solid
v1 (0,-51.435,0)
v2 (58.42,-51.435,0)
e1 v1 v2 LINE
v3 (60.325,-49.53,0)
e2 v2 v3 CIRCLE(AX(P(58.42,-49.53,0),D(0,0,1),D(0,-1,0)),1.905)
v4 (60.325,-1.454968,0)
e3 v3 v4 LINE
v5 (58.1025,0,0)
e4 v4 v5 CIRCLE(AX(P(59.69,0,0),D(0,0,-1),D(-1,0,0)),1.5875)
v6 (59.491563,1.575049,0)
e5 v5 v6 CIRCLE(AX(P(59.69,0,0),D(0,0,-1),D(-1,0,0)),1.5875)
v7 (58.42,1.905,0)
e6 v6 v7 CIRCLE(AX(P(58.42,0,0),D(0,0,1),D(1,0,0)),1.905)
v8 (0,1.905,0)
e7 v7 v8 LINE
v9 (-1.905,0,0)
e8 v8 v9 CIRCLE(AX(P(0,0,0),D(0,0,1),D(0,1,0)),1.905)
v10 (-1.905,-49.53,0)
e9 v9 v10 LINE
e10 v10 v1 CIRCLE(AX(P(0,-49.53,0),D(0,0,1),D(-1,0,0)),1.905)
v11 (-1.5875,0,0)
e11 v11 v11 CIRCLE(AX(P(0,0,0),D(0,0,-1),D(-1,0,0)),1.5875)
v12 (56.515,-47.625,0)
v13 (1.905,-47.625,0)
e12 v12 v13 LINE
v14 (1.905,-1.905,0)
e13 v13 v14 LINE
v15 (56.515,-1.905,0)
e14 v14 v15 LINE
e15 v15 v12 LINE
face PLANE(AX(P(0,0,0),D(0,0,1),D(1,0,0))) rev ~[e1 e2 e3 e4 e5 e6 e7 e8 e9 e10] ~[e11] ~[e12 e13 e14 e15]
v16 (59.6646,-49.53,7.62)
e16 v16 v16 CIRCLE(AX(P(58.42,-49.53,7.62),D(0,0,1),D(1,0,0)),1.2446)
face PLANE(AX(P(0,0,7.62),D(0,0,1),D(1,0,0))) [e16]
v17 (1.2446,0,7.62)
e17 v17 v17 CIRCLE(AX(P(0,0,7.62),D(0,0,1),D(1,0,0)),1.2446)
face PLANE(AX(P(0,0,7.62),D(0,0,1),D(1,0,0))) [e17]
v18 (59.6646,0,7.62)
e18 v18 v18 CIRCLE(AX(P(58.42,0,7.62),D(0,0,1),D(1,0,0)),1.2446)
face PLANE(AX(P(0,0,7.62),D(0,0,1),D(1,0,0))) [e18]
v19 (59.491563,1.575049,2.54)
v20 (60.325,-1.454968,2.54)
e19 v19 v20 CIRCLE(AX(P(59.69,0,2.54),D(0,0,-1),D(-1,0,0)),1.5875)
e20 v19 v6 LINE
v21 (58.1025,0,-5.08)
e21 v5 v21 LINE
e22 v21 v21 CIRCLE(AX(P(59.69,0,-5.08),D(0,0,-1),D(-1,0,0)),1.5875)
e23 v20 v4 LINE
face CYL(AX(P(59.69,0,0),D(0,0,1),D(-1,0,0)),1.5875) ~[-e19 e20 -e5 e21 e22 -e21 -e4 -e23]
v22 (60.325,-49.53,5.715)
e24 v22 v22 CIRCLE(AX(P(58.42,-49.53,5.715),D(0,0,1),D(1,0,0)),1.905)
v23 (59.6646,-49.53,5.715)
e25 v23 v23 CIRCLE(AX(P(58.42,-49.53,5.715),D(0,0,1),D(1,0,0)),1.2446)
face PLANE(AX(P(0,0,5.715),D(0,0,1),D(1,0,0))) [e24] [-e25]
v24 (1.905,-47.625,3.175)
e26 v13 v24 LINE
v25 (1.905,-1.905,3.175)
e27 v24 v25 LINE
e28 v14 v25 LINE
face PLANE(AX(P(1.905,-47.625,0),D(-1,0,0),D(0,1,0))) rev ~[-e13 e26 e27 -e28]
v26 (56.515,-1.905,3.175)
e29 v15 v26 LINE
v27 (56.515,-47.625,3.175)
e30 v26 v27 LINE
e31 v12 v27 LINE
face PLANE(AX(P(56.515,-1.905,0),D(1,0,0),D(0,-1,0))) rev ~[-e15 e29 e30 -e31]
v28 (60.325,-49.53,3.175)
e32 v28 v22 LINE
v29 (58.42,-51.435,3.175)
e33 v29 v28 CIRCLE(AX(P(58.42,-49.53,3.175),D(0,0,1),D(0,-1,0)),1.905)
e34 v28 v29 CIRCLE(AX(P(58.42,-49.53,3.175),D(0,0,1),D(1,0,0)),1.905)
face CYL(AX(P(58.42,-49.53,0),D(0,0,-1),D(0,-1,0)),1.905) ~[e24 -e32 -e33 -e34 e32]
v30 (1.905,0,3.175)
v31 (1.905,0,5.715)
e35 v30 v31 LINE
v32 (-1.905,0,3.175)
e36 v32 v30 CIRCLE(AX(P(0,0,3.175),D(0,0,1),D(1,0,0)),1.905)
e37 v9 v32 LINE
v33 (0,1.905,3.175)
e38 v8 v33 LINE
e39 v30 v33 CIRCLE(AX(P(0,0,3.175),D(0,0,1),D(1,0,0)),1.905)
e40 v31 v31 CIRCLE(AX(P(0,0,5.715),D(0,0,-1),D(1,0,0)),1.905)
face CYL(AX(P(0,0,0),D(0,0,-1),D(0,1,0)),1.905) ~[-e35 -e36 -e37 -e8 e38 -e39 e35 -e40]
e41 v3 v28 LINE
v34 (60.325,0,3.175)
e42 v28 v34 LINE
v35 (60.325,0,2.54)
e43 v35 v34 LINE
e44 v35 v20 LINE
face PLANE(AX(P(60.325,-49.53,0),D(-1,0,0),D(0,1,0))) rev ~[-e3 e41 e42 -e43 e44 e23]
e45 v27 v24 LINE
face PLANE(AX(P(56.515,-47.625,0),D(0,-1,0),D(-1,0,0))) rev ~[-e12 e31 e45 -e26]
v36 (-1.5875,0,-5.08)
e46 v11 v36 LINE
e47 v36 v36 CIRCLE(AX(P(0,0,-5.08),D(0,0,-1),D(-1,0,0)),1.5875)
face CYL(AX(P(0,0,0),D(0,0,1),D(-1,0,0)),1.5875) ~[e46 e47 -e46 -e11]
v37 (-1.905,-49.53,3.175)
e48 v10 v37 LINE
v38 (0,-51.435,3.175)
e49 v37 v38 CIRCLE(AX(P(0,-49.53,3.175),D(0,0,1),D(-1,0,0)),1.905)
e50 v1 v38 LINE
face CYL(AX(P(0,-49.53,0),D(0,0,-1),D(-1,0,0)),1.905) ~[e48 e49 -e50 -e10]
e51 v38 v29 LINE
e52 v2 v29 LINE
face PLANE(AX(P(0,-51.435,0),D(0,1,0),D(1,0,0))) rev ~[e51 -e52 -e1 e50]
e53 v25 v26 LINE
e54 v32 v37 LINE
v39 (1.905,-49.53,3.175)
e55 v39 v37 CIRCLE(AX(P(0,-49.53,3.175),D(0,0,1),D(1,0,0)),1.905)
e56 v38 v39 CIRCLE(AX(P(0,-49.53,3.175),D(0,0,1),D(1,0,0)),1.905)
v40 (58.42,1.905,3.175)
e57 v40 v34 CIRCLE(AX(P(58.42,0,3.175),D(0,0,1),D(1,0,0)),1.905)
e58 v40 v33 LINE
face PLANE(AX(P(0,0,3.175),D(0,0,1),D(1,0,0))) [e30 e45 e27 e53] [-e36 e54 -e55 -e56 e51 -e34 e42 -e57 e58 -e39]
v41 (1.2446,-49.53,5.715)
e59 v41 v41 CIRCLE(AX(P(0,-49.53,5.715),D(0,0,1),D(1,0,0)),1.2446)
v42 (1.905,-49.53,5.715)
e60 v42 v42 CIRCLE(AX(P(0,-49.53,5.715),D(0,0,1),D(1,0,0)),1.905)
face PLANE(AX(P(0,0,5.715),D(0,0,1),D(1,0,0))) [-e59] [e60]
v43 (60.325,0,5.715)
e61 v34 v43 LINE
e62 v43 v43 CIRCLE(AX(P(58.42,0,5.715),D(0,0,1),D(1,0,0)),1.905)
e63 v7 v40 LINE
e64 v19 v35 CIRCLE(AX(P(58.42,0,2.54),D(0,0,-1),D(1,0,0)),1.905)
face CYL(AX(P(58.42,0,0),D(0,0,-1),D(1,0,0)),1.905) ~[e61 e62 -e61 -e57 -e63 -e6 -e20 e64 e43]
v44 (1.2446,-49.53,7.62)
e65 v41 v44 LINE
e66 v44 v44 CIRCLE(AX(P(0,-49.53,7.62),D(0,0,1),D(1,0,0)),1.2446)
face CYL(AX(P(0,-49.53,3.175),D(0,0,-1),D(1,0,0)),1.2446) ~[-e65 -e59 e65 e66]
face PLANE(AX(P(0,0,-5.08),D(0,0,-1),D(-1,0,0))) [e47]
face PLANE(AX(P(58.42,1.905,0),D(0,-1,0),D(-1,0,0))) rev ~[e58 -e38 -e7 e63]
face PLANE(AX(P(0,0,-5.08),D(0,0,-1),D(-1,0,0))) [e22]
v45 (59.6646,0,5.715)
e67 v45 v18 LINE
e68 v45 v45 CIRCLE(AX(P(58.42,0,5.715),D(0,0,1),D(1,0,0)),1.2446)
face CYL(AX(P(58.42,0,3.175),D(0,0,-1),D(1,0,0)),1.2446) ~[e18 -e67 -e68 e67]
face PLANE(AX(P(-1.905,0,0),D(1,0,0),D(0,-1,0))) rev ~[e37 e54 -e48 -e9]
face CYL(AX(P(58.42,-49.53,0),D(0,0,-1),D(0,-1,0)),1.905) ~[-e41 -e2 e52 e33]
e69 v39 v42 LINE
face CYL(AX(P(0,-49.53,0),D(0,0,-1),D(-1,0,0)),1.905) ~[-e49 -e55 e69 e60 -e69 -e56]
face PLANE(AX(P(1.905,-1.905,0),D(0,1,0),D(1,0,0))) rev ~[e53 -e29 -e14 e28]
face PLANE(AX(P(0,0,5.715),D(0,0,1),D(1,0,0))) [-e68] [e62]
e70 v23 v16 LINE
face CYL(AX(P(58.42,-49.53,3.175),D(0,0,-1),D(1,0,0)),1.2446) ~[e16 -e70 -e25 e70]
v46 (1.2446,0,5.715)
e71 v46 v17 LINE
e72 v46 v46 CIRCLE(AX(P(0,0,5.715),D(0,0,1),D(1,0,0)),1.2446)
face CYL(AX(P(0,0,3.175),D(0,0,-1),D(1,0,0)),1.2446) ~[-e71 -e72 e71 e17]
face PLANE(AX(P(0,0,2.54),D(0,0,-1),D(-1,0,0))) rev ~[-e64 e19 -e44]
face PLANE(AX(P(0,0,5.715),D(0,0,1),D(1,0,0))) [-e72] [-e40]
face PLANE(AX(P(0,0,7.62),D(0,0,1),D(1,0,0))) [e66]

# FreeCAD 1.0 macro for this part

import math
import FreeCAD as App
import Part
import Sketcher
from FreeCAD import Vector
Q = App.Units.Quantity


def add_polygon(sketch, points):
    """Adds a closed chain of lines whose ends are joined by coincident constraints."""
    first, n = sketch.GeometryCount, len(points)
    for a, b in zip(points, points[1:] + points[:1]):
        sketch.addGeometry(Part.LineSegment(App.Vector(*a, 0), App.Vector(*b, 0)), False)
    for i in range(n):
        sketch.addConstraint(Sketcher.Constraint("Coincident", first + i, 2, first + (i + 1) % n, 1))

doc = App.newDocument("Part")
body = doc.addObject("PartDesign::Body", "Body")

sketch1 = body.newObject("Sketcher::SketchObject", "Sketch")
sketch1.AttachmentSupport = (doc.getObject("XY_Plane"), [""])
sketch1.MapMode = "FlatFace"
sketch1.addGeometry(Part.LineSegment(Vector(58.4, 1.9, 0), Vector(0, 1.9, 0)), False)
sketch1.addGeometry(Part.ArcOfCircle(Part.Circle(Vector(0, 0, 0), Vector(0, 0, 1), 1.9), math.radians(90), math.radians(180)), False)
sketch1.addGeometry(Part.LineSegment(Vector(-1.9, 0, 0), Vector(-1.9, -49.5, 0)), False)
sketch1.addGeometry(Part.ArcOfCircle(Part.Circle(Vector(0, -49.5, 0), Vector(0, 0, 1), 1.9), math.radians(180), math.radians(270)), False)
sketch1.addGeometry(Part.LineSegment(Vector(0, -51.4, 0), Vector(58.4, -51.4, 0)), False)
sketch1.addGeometry(Part.ArcOfCircle(Part.Circle(Vector(58.4, -49.5, 0), Vector(0, 0, 1), 1.9), math.radians(-90), math.radians(0)), False)
sketch1.addGeometry(Part.LineSegment(Vector(60.3, -49.5, 0), Vector(60.3, 0, 0)), False)
sketch1.addGeometry(Part.ArcOfCircle(Part.Circle(Vector(58.4, 0, 0), Vector(0, 0, 1), 1.9), math.radians(0), math.radians(90)), False)
add_polygon(sketch1, [(56.5, -47.6), (1.9, -47.6), (1.9, -1.9), (56.5, -1.9)])
sketch1.addConstraint([
    Sketcher.Constraint("Tangent", 0, 2, 1, 1),
    Sketcher.Constraint("Tangent", 1, 2, 2, 1),
    Sketcher.Constraint("Tangent", 2, 2, 3, 1),
    Sketcher.Constraint("Tangent", 3, 2, 4, 1),
    Sketcher.Constraint("Tangent", 4, 2, 5, 1),
    Sketcher.Constraint("Tangent", 5, 2, 6, 1),
    Sketcher.Constraint("Tangent", 6, 2, 7, 1),
    Sketcher.Constraint("Tangent", 7, 2, 0, 1),
    Sketcher.Constraint("Horizontal", 0),
    Sketcher.Constraint("Vertical", 2),
    Sketcher.Constraint("Horizontal", 4),
    Sketcher.Constraint("Vertical", 6),
    Sketcher.Constraint("Horizontal", 8),
    Sketcher.Constraint("Vertical", 9),
    Sketcher.Constraint("Horizontal", 10),
    Sketcher.Constraint("Vertical", 11),
    Sketcher.Constraint("Coincident", 1, 3, -1, 1),
    Sketcher.Constraint("Equal", 1, 3),
    Sketcher.Constraint("Equal", 3, 5),
    Sketcher.Constraint("Equal", 5, 7),
    Sketcher.Constraint("DistanceX", 0, 2, 0, 1, Q("2.3 in")),
    Sketcher.Constraint("Radius", 1, Q("0.075 in")),
    Sketcher.Constraint("DistanceY", 2, 2, 2, 1, Q("1.95 in")),
    Sketcher.Constraint("DistanceX", 2, 2, 8, 2, Q("0.15 in")),
    Sketcher.Constraint("DistanceY", 3, 2, 8, 2, Q("0.15 in")),
    Sketcher.Constraint("DistanceY", 9, 2, 0, 2, Q("0.15 in")),
    Sketcher.Constraint("DistanceX", 10, 2, 6, 2, Q("0.15 in")),
])
pad1 = body.newObject("PartDesign::Pad", "Pad")
pad1.Profile = sketch1
pad1.Length = Q("0.125 in")

sketch2 = body.newObject("Sketcher::SketchObject", "Sketch001")
sketch2.AttachmentSupport = (doc.getObject("XY_Plane"), [""])
sketch2.MapMode = "FlatFace"
sketch2.AttachmentOffset = App.Placement(Vector(0, 0, 0.125 * 25.4), App.Rotation())
sketch2.addGeometry([
    Part.Circle(Vector(0, 0, 0), Vector(0, 0, 1), 1.2),
    Part.Circle(Vector(58.4, 0, 0), Vector(0, 0, 1), 1.2),
    Part.Circle(Vector(58.4, -49.5, 0), Vector(0, 0, 1), 1.2),
    Part.Circle(Vector(0, -49.5, 0), Vector(0, 0, 1), 1.2),
], False)
sketch2.addConstraint([
    Sketcher.Constraint("Coincident", 0, 3, -1, 1),
    Sketcher.Constraint("Equal", 0, 1),
    Sketcher.Constraint("Equal", 1, 2),
    Sketcher.Constraint("Equal", 2, 3),
    Sketcher.Constraint("PointOnObject", 1, 3, -1),
    Sketcher.Constraint("PointOnObject", 3, 3, -2),
    Sketcher.Constraint("Horizontal", 2, 3, 3, 3),
    Sketcher.Constraint("Vertical", 1, 3, 2, 3),
    Sketcher.Constraint("Diameter", 0, Q("0.098 in")),
    Sketcher.Constraint("DistanceX", -1, 1, 1, 3, Q("2.3 in")),
    Sketcher.Constraint("DistanceY", 2, 3, -1, 1, Q("1.95 in")),
])
pad2 = body.newObject("PartDesign::Pad", "Pad001")
pad2.Profile = sketch2
pad2.Length = Q("0.175 in")

sketch3 = body.newObject("Sketcher::SketchObject", "Sketch002")
sketch3.AttachmentSupport = (doc.getObject("XY_Plane"), [""])
sketch3.MapMode = "FlatFace"
sketch3.AttachmentOffset = App.Placement(Vector(0, 0, 0.125 * 25.4), App.Rotation())
sketch3.addGeometry([
    Part.Circle(Vector(58.4, 0, 0), Vector(0, 0, 1), 1.9),
    Part.Circle(Vector(58.4, 0, 0), Vector(0, 0, 1), 1.2),
    Part.Circle(Vector(58.4, -49.5, 0), Vector(0, 0, 1), 1.9),
    Part.Circle(Vector(58.4, -49.5, 0), Vector(0, 0, 1), 1.2),
    Part.Circle(Vector(0, 0, 0), Vector(0, 0, 1), 1.9),
    Part.Circle(Vector(0, 0, 0), Vector(0, 0, 1), 1.2),
    Part.Circle(Vector(0, -49.5, 0), Vector(0, 0, 1), 1.9),
    Part.Circle(Vector(0, -49.5, 0), Vector(0, 0, 1), 1.2),
], False)
sketch3.addConstraint([
    Sketcher.Constraint("Coincident", 4, 3, -1, 1),
    Sketcher.Constraint("Coincident", 5, 3, -1, 1),
    Sketcher.Constraint("Coincident", 1, 3, 0, 3),
    Sketcher.Constraint("Coincident", 3, 3, 2, 3),
    Sketcher.Constraint("Coincident", 7, 3, 6, 3),
    Sketcher.Constraint("Equal", 0, 2),
    Sketcher.Constraint("Equal", 1, 3),
    Sketcher.Constraint("Equal", 2, 4),
    Sketcher.Constraint("Equal", 3, 5),
    Sketcher.Constraint("Equal", 4, 6),
    Sketcher.Constraint("Equal", 5, 7),
    Sketcher.Constraint("PointOnObject", 0, 3, -1),
    Sketcher.Constraint("PointOnObject", 6, 3, -2),
    Sketcher.Constraint("Horizontal", 3, 3, 6, 3),
    Sketcher.Constraint("Vertical", 1, 3, 2, 3),
    Sketcher.Constraint("Diameter", 0, Q("0.15 in")),
    Sketcher.Constraint("Diameter", 1, Q("0.098 in")),
    Sketcher.Constraint("DistanceX", -1, 1, 0, 3, Q("2.3 in")),
    Sketcher.Constraint("DistanceY", 2, 3, -1, 1, Q("1.95 in")),
])
pad3 = body.newObject("PartDesign::Pad", "Pad002")
pad3.Profile = sketch3
pad3.Length = Q("0.1 in")

sketch4 = body.newObject("Sketcher::SketchObject", "Sketch003")
sketch4.AttachmentSupport = (doc.getObject("XY_Plane"), [""])
sketch4.MapMode = "FlatFace"
sketch4.addGeometry(Part.Circle(Vector(59.7, 0, 0), Vector(0, 0, 1), 1.6), False)
sketch4.addConstraint([
    Sketcher.Constraint("PointOnObject", 0, 3, -1),
    Sketcher.Constraint("Diameter", 0, Q("0.125 in")),
    Sketcher.Constraint("DistanceX", -1, 1, 0, 3, Q("2.35 in")),
])
pad4 = body.newObject("PartDesign::Pad", "Pad003")
pad4.Profile = sketch4
pad4.Length = Q("0.1 in")

sketch5 = body.newObject("Sketcher::SketchObject", "Sketch004")
sketch5.AttachmentSupport = (doc.getObject("XY_Plane"), [""])
sketch5.MapMode = "FlatFace"
sketch5.addGeometry([
    Part.Circle(Vector(0, 0, 0), Vector(0, 0, 1), 1.6),
    Part.Circle(Vector(59.7, 0, 0), Vector(0, 0, 1), 1.6),
], False)
sketch5.addConstraint([
    Sketcher.Constraint("Coincident", 0, 3, -1, 1),
    Sketcher.Constraint("Equal", 0, 1),
    Sketcher.Constraint("PointOnObject", 1, 3, -1),
    Sketcher.Constraint("Diameter", 0, Q("0.125 in")),
    Sketcher.Constraint("DistanceX", -1, 1, 1, 3, Q("2.35 in")),
])
pad5 = body.newObject("PartDesign::Pad", "Pad004")
pad5.Profile = sketch5
pad5.Length = Q("0.2 in")
pad5.Reversed = True

doc.recompute()
